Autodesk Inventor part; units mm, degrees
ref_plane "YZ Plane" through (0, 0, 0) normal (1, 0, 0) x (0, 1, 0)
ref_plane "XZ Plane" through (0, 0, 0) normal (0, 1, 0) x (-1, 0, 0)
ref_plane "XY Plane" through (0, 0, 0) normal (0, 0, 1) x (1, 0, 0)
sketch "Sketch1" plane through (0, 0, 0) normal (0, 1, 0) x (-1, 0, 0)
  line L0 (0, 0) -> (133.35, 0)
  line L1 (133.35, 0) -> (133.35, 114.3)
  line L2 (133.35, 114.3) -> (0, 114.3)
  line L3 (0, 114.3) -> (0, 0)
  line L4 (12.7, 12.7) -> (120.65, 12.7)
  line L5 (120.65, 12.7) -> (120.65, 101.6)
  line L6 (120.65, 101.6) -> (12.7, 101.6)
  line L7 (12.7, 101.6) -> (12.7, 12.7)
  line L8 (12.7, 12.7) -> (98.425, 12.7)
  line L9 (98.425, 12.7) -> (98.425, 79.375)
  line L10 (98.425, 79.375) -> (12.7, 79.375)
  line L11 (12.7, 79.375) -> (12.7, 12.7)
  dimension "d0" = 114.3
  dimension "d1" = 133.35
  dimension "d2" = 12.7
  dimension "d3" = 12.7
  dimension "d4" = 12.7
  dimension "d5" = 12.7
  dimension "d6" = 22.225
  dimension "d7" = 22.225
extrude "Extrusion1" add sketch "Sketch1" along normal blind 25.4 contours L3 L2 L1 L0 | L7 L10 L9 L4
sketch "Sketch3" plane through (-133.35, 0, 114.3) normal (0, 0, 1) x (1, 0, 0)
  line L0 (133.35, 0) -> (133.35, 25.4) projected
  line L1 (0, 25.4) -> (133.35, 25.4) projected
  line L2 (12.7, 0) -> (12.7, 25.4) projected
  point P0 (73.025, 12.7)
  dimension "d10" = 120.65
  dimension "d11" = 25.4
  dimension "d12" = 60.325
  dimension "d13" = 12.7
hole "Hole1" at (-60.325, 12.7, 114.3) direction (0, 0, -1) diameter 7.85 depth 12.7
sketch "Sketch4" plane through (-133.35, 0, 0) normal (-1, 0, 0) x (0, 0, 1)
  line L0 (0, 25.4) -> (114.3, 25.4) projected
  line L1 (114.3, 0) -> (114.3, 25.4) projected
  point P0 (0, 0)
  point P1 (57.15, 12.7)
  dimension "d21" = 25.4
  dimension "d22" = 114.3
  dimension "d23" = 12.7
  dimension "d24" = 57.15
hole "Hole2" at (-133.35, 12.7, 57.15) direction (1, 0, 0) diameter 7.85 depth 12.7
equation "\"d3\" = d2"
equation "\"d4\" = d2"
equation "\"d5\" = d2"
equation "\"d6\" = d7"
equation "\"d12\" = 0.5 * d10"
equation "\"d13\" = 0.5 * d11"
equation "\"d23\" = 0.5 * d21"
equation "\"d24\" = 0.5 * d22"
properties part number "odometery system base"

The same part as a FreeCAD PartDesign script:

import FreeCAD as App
import Part
import Sketcher

V = App.Vector
Q = App.Units.Quantity


def add_polygon(sketch, points):
    """Adds a closed chain of lines whose ends are joined by coincident constraints."""
    first, n = sketch.GeometryCount, len(points)
    for a, b in zip(points, points[1:] + points[:1]):
        sketch.addGeometry(Part.LineSegment(App.Vector(*a, 0), App.Vector(*b, 0)), False)
    for i in range(n):
        sketch.addConstraint(Sketcher.Constraint("Coincident", first + i, 2, first + (i + 1) % n, 1))

doc = App.newDocument("Part")
params = doc.addObject("Spreadsheet::Sheet", "Params")
for row, (alias, value) in enumerate([
    ("sketch1_height", "4.5 in"),
    ("sketch1_width", "5.25 in"),
    ("sketch1_width2", "0.875 in"),
    ("pad1_length", "1 in"),
    ("hole_diameter", "7.85 mm"),
    ("hole_depth", "0.5 in"),
    ("hole2_diameter", "7.85 mm"),
    ("hole2_depth", "0.5 in"),
], start=1):
    params.set(f"A{row}", alias)
    params.set(f"B{row}", "=" + value)
    params.setAlias(f"B{row}", alias)

body = doc.addObject("PartDesign::Body", "Body")

# Sketch on XZ plane
sketch1 = body.newObject("Sketcher::SketchObject", "Sketch")
sketch1.AttachmentSupport = (doc.getObject("XZ_Plane"), [""])
sketch1.MapMode = "FlatFace"
add_polygon(sketch1, [(0, 114), (0, 0), (-133, 0), (-133, 114)])  # lines 0-3
add_polygon(sketch1, [(-121, 13), (-98, 13), (-98, 79), (-13, 79), (-13, 102), (-121, 102)])  # lines 4-9
sketch1.addConstraint(Sketcher.Constraint("Vertical", 0))
sketch1.addConstraint(Sketcher.Constraint("Horizontal", 1))
sketch1.addConstraint(Sketcher.Constraint("Vertical", 2))
sketch1.addConstraint(Sketcher.Constraint("Horizontal", 3))
sketch1.addConstraint(Sketcher.Constraint("Horizontal", 4))
sketch1.addConstraint(Sketcher.Constraint("Vertical", 5))
sketch1.addConstraint(Sketcher.Constraint("Horizontal", 6))
sketch1.addConstraint(Sketcher.Constraint("Vertical", 7))
sketch1.addConstraint(Sketcher.Constraint("Horizontal", 8))
sketch1.addConstraint(Sketcher.Constraint("Vertical", 9))
sketch1.addConstraint(Sketcher.Constraint("Coincident", 0, 2, -1, 1))
sketch1.addConstraint(Sketcher.Constraint("Equal", 4, 7))
sketch1.addConstraint(Sketcher.Constraint("DistanceY", 0, 2, 0, 1, Q("4.5 in")))
sketch1.addConstraint(Sketcher.Constraint("DistanceX", 1, 2, 1, 1, Q("5.25 in")))
sketch1.addConstraint(Sketcher.Constraint("DistanceY", -1, 1, 4, 2, Q("0.5 in")))
sketch1.addConstraint(Sketcher.Constraint("DistanceX", 6, 2, -1, 1, Q("0.5 in")))
sketch1.addConstraint(Sketcher.Constraint("DistanceY", 7, 2, 3, 2, Q("0.5 in")))
sketch1.addConstraint(Sketcher.Constraint("DistanceX", 2, 2, 8, 2, Q("0.5 in")))
sketch1.addConstraint(Sketcher.Constraint("DistanceX", 4, 1, 4, 2, Q("0.875 in")))
sketch1.setExpression("Constraints[22]", "Params.sketch1_height")
sketch1.setExpression("Constraints[23]", "Params.sketch1_width")
sketch1.setExpression("Constraints[28]", "Params.sketch1_width2")
pad1 = body.newObject("PartDesign::Pad", "Pad")
pad1.Profile = sketch1
pad1.setExpression("Length", "Params.pad1_length")
pad1.Reversed = True

# Sketch on XY plane
sketch2 = body.newObject("Sketcher::SketchObject", "Sketch001")
sketch2.AttachmentSupport = (doc.getObject("XY_Plane"), [""])
sketch2.MapMode = "FlatFace"
sketch2.AttachmentOffset = App.Placement(V(0, 0, 4.5 * 25.4), App.Rotation())
sketch2.addGeometry(Part.Circle(V(-60.3, 12.7, 0), V(0, 0, 1), 3.9), False)
sketch2.addConstraint(Sketcher.Constraint("DistanceY", -1, 1, 0, 3, Q("0.5 in")))
sketch2.addConstraint(Sketcher.Constraint("Diameter", 0, 7.85))
sketch2.addConstraint(Sketcher.Constraint("DistanceX", 0, 3, -1, 1, Q("2.375 in")))
doc.recompute()
hole = body.newObject("PartDesign::Hole", "Hole")
hole.Profile = sketch2
hole.ThreadType = "None"
hole.setExpression("Diameter", "Params.hole_diameter")
hole.DepthType = "Dimension"
hole.setExpression("Depth", "Params.hole_depth")
hole.DrillPoint = "Flat"

# Sketch on YZ plane
sketch3 = body.newObject("Sketcher::SketchObject", "Sketch002")
sketch3.AttachmentSupport = (doc.getObject("YZ_Plane"), [""])
sketch3.MapMode = "FlatFace"
sketch3.AttachmentOffset = App.Placement(V(0, 0, -5.25 * 25.4), App.Rotation())
sketch3.addGeometry(Part.Circle(V(12.7, 57.1, 0), V(0, 0, 1), 3.9), False)
sketch3.addConstraint(Sketcher.Constraint("DistanceX", -1, 1, 0, 3, Q("0.5 in")))
sketch3.addConstraint(Sketcher.Constraint("Diameter", 0, 7.85))
sketch3.addConstraint(Sketcher.Constraint("DistanceY", -1, 1, 0, 3, Q("2.25 in")))
doc.recompute()
hole2 = body.newObject("PartDesign::Hole", "Hole001")
hole2.Profile = sketch3
hole2.ThreadType = "None"
hole2.setExpression("Diameter", "Params.hole2_diameter")
hole2.DepthType = "Dimension"
hole2.setExpression("Depth", "Params.hole2_depth")
hole2.DrillPoint = "Flat"
hole2.Reversed = True

doc.recompute()
